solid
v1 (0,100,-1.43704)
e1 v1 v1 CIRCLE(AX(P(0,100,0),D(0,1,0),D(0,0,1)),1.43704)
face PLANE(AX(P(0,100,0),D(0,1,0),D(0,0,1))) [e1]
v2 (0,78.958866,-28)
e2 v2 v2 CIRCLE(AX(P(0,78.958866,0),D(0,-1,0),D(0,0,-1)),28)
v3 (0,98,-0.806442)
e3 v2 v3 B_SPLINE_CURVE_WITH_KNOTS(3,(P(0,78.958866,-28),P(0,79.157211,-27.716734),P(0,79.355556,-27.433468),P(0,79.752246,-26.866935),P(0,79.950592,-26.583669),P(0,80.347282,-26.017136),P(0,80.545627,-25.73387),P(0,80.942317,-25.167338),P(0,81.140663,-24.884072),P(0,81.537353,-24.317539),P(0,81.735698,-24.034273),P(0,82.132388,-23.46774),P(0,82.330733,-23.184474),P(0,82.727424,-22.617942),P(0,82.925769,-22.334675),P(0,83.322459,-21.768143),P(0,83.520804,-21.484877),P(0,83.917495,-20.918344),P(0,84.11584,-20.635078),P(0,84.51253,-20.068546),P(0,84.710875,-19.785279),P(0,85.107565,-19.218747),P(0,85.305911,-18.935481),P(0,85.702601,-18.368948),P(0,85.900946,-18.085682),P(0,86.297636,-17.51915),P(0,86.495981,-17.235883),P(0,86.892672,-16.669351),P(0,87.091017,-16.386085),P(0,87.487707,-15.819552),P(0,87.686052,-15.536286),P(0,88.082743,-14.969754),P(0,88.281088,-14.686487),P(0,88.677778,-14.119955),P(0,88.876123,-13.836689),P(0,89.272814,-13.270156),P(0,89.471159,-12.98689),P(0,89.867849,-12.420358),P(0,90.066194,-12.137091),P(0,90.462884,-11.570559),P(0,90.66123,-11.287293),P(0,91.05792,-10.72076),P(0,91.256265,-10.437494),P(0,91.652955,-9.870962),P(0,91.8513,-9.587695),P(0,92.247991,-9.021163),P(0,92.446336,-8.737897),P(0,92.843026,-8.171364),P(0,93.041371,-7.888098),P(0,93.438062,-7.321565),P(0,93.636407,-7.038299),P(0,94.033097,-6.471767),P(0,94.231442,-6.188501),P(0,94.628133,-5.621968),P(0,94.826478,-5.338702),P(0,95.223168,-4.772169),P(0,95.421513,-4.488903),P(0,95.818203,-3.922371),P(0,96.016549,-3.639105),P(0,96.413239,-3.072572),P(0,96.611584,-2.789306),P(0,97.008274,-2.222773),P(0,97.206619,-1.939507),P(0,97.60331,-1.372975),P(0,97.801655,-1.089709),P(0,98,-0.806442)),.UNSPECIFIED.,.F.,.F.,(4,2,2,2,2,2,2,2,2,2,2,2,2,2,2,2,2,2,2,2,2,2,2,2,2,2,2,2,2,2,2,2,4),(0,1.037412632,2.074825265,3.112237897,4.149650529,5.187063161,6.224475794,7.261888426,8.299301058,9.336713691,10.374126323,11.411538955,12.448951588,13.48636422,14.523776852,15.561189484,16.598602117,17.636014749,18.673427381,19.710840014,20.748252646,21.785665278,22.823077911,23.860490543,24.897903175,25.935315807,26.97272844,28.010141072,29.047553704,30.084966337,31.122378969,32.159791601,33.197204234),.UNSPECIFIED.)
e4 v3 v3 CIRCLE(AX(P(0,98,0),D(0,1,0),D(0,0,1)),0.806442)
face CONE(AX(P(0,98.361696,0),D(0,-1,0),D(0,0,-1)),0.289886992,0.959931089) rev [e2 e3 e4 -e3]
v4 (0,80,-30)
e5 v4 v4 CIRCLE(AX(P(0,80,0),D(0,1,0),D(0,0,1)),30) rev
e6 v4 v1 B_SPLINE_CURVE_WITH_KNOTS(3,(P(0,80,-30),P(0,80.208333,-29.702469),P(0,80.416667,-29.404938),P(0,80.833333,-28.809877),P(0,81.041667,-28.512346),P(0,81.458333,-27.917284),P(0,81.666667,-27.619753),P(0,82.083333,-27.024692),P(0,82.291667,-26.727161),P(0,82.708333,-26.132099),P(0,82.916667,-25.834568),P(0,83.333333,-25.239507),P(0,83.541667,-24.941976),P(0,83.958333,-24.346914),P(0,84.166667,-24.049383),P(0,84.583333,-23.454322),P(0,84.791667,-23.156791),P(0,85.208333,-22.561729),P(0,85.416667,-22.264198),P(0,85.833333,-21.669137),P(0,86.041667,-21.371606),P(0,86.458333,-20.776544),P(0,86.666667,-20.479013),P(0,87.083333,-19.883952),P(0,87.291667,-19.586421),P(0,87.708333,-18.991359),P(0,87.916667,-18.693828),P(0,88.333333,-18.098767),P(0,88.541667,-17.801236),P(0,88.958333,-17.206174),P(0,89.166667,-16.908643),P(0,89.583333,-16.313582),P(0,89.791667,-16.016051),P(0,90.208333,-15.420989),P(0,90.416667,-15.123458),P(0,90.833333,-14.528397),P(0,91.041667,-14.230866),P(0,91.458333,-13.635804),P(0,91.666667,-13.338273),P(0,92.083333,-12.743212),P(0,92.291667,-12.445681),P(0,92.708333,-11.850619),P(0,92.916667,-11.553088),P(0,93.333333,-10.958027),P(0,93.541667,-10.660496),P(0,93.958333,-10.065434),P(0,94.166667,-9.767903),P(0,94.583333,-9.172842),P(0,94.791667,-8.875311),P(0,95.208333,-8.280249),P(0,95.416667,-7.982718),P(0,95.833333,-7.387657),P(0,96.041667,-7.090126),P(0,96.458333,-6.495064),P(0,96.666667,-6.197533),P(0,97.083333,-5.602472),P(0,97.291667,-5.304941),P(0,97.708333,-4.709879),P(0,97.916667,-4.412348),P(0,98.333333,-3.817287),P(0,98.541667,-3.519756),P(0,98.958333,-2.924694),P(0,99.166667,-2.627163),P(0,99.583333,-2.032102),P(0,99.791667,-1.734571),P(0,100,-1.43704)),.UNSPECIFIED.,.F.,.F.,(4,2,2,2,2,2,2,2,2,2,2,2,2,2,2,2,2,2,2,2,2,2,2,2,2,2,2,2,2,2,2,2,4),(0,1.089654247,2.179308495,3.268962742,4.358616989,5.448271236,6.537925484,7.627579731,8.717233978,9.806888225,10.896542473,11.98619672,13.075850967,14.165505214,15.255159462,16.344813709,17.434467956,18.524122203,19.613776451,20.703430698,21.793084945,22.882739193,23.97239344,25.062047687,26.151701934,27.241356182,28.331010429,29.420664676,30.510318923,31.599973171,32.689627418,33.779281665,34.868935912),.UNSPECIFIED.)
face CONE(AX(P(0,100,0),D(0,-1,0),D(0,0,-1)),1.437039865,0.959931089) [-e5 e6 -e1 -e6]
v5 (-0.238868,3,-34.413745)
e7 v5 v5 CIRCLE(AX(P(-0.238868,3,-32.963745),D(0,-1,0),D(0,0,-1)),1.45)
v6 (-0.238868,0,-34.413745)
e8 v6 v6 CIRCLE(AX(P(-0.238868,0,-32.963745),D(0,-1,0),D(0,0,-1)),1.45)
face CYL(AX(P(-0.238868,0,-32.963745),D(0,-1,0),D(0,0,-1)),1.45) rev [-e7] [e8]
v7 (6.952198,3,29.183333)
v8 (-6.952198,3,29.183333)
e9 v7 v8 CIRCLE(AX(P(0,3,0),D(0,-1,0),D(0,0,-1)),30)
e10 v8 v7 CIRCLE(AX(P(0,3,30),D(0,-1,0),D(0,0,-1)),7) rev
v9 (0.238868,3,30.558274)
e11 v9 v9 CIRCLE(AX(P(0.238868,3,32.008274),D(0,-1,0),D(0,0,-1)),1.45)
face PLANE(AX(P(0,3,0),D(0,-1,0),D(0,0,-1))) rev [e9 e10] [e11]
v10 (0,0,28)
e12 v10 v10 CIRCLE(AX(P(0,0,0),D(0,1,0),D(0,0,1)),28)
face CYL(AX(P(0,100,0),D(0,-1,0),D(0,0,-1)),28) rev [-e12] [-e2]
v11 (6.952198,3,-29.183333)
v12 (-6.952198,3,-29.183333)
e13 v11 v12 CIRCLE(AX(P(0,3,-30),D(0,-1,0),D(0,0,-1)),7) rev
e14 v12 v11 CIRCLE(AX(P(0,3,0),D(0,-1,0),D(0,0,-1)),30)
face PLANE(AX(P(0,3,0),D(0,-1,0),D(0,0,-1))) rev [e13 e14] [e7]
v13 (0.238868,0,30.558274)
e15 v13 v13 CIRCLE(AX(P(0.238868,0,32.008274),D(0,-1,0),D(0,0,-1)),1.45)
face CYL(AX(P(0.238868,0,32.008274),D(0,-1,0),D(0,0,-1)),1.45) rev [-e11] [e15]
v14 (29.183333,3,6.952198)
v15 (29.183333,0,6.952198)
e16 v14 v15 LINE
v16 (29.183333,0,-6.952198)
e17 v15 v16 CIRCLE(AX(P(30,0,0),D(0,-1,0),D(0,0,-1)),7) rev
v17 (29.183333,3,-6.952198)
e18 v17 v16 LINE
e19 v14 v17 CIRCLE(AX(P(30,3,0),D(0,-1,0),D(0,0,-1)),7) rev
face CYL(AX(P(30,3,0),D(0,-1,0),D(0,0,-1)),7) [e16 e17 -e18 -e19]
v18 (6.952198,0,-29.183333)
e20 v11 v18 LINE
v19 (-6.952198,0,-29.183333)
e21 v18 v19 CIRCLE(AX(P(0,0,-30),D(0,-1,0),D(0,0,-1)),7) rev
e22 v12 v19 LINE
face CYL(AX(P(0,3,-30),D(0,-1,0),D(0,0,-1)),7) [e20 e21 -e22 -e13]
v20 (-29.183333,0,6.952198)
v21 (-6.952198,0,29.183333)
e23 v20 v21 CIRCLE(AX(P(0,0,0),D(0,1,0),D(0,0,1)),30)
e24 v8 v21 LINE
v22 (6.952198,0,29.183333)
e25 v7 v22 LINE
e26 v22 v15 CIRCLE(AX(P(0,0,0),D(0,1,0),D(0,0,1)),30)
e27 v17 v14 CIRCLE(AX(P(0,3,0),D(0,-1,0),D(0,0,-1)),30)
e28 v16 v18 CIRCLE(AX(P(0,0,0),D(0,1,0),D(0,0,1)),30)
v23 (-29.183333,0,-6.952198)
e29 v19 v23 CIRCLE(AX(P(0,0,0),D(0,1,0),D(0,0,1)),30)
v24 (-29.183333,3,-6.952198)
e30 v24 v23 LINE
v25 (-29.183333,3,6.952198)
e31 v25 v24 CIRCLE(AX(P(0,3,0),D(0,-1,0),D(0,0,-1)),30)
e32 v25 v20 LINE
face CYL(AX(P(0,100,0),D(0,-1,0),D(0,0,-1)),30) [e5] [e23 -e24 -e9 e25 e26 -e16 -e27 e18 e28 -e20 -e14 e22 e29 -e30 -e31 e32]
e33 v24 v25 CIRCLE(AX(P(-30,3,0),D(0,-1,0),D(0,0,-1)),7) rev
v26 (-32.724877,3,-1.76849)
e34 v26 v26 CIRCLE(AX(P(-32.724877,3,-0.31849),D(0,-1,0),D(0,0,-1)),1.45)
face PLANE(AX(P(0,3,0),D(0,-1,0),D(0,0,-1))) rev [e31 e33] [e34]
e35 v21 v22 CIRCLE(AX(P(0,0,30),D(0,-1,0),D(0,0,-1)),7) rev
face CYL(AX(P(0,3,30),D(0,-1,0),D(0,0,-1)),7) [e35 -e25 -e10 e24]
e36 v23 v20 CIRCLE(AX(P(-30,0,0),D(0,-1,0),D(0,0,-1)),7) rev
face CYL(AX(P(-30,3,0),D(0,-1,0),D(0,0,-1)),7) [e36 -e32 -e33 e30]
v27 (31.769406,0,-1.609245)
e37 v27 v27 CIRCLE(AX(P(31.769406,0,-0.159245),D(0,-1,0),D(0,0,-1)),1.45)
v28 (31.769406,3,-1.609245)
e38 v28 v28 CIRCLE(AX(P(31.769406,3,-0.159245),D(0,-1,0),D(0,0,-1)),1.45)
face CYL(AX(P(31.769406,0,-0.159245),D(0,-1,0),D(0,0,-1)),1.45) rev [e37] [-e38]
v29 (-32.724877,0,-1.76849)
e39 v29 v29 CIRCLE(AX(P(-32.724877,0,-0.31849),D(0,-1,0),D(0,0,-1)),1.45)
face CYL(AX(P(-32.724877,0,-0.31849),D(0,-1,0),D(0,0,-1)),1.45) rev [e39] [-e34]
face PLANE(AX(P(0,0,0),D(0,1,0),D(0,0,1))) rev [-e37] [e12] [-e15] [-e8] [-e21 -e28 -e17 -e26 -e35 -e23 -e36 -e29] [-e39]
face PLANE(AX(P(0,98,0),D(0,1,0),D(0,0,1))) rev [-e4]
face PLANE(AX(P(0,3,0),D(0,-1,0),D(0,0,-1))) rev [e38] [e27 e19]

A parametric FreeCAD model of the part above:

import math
import FreeCAD as App
import Part
import Sketcher
from FreeCAD import Vector


def edges_at(feature, points):
    """Names of the edges that pass closest to the given points."""
    edges = feature.Shape.Edges
    near = lambda p: min(range(len(edges)), key=lambda i: edges[i].distToShape(Part.Vertex(*p))[0])
    return sorted({f"Edge{near(p) + 1}" for p in points})


def faces_at(feature, points):
    """Names of the faces that lie closest to the given points."""
    faces = feature.Shape.Faces
    near = lambda p: min(range(len(faces)), key=lambda i: faces[i].distToShape(Part.Vertex(*p))[0])
    return sorted({f"Face{near(p) + 1}" for p in points})

doc = App.newDocument("Part")
params = doc.addObject("Spreadsheet::Sheet", "Params")
for row, (alias, value) in enumerate([
    ("sketch1_diameter", "60 mm"),
    ("pad1_length", "100 mm"),
    ("chamfer_size", "20 mm"),
    ("chamfer_size2", "28.56296 mm"),
    ("thickness_wall", "2 mm"),
    ("sketch2_radius", "7 mm"),
    ("sketch2_radius2", "30 mm"),
    ("pad2_length", "3 mm"),
    ("sketch3_diameter", "2.9 mm"),
    ("hole_diameter", "2.9 mm"),
    ("hole_depth", "9.128752 mm"),
], start=1):
    params.set(f"A{row}", alias)
    params.set(f"B{row}", "=" + value)
    params.setAlias(f"B{row}", alias)

body = doc.addObject("PartDesign::Body", "Body")

# Sketch on XZ plane
sketch1 = body.newObject("Sketcher::SketchObject", "Sketch")
sketch1.AttachmentSupport = (doc.getObject("XZ_Plane"), [""])
sketch1.MapMode = "FlatFace"
sketch1.addGeometry(Part.Circle(Vector(0, 0, 0), Vector(0, 0, 1), 30), False)
sketch1.addConstraint([
    Sketcher.Constraint("Coincident", 0, 3, -1, 1),
    Sketcher.Constraint("Diameter", 0, 60.0),
])
sketch1.setExpression("Constraints[1]", "Params.sketch1_diameter")
pad1 = body.newObject("PartDesign::Pad", "Pad")
pad1.Profile = sketch1
pad1.setExpression("Length", "Params.pad1_length")
pad1.Reversed = True
doc.recompute()

chamfer = body.newObject("PartDesign::Chamfer", "Chamfer")
chamfer.Base = (pad1, edges_at(pad1, [(0, 100, -30)]))
chamfer.ChamferType = "Two distances"
chamfer.setExpression("Size", "Params.chamfer_size")
chamfer.setExpression("Size2", "Params.chamfer_size2")
doc.recompute()

thickness = body.newObject("PartDesign::Thickness", "Thickness")
thickness.Base = (chamfer, faces_at(chamfer, [(0, 0, 0)]))
thickness.setExpression("Value", "Params.thickness_wall")
thickness.Reversed = True
thickness.Join = "Intersection"

# Sketch on XZ plane
sketch2 = body.newObject("Sketcher::SketchObject", "Sketch001")
sketch2.AttachmentSupport = (doc.getObject("XZ_Plane"), [""])
sketch2.MapMode = "FlatFace"
sketch2.addGeometry([
    Part.ArcOfCircle(Part.Circle(Vector(30, 0, 0), Vector(0, 0, 1), 7), math.radians(-97), math.radians(97)),  # 0
    Part.ArcOfCircle(Part.Circle(Vector(0, 0, 0), Vector(0, 0, 1), 30), math.radians(0), math.radians(13.4)),  # 1
    Part.ArcOfCircle(Part.Circle(Vector(0, 0, 0), Vector(0, 0, 1), 30), math.radians(-13.4), math.radians(0)),  # 2
    Part.ArcOfCircle(Part.Circle(Vector(0, 0, 0), Vector(0, 0, 1), 30), math.radians(77), math.radians(103)),  # 3
    Part.ArcOfCircle(Part.Circle(Vector(0, 30, 0), Vector(0, 0, 1), 7), math.radians(-7), math.radians(187)),  # 4
    Part.ArcOfCircle(Part.Circle(Vector(0, 0, 0), Vector(0, 0, 1), 30), math.radians(167), math.radians(193)),  # 5
    Part.ArcOfCircle(Part.Circle(Vector(-30, 0, 0), Vector(0, 0, 1), 7), math.radians(83), math.radians(277)),  # 6
    Part.ArcOfCircle(Part.Circle(Vector(0, -30, 0), Vector(0, 0, 1), 7), math.radians(173), math.radians(367)),  # 7
    Part.ArcOfCircle(Part.Circle(Vector(0, 0, 0), Vector(0, 0, 1), 30), math.radians(-103), math.radians(-77)),  # 8
], False)
sketch2.addConstraint([
    Sketcher.Constraint("Coincident", 0, 2, 1, 2),
    Sketcher.Constraint("Tangent", 1, 1, 2, 2),
    Sketcher.Constraint("Coincident", 2, 1, 0, 1),
    Sketcher.Constraint("Coincident", 3, 1, 4, 1),
    Sketcher.Constraint("Coincident", 4, 2, 3, 2),
    Sketcher.Constraint("Coincident", 5, 1, 6, 1),
    Sketcher.Constraint("Coincident", 6, 2, 5, 2),
    Sketcher.Constraint("Coincident", 7, 1, 8, 1),
    Sketcher.Constraint("Coincident", 8, 2, 7, 2),
    Sketcher.Constraint("Coincident", 1, 3, -1, 1),
    Sketcher.Constraint("Coincident", 3, 3, -1, 1),
    Sketcher.Constraint("Coincident", 5, 3, -1, 1),
    Sketcher.Constraint("Coincident", 8, 3, -1, 1),
    Sketcher.Constraint("Coincident", 1, 1, 0, 3),
    Sketcher.Constraint("Equal", 1, 2),
    Sketcher.Constraint("Equal", 2, 3),
    Sketcher.Constraint("Equal", 0, 4),
    Sketcher.Constraint("Equal", 3, 5),
    Sketcher.Constraint("Equal", 4, 6),
    Sketcher.Constraint("Equal", 6, 7),
    Sketcher.Constraint("Equal", 5, 8),
    Sketcher.Constraint("Symmetric", 0, 3, 6, 3, -1, 1),
    Sketcher.Constraint("Symmetric", 4, 3, 7, 3, -1, 1),
    Sketcher.Constraint("PointOnObject", 0, 3, -1),
    Sketcher.Constraint("PointOnObject", 4, 3, -2),
    Sketcher.Constraint("Radius", 0, 7.0),
    Sketcher.Constraint("Radius", 1, 30.0),
    Sketcher.Constraint("DistanceY", -1, 1, 4, 3, 30.0),
])
sketch2.setExpression("Constraints[25]", "Params.sketch2_radius")
sketch2.setExpression("Constraints[26]", "Params.sketch2_radius2")
pad2 = body.newObject("PartDesign::Pad", "Pad001")
pad2.Profile = sketch2
pad2.setExpression("Length", "Params.pad2_length")
pad2.Reversed = True

# Sketch on XZ plane
sketch3 = body.newObject("Sketcher::SketchObject", "Sketch002")
sketch3.AttachmentSupport = (doc.getObject("XZ_Plane"), [""])
sketch3.MapMode = "FlatFace"
sketch3.addGeometry([
    Part.Circle(Vector(0.2, 32, 0), Vector(0, 0, 1), 1.4),
    Part.Circle(Vector(31.8, -0.2, 0), Vector(0, 0, 1), 1.4),
    Part.Circle(Vector(-0.2, -33, 0), Vector(0, 0, 1), 1.4),
    Part.Circle(Vector(-32.7, -0.3, 0), Vector(0, 0, 1), 1.4),
], False)
sketch3.addConstraint([
    Sketcher.Constraint("Equal", 0, 1),
    Sketcher.Constraint("Equal", 1, 2),
    Sketcher.Constraint("Equal", 2, 3),
    Sketcher.Constraint("Diameter", 0, 2.9),
    Sketcher.Constraint("DistanceY", 2, 3, 1, 3, 32.804499),
    Sketcher.Constraint("DistanceY", 3, 3, -1, 1, 0.31849),
    Sketcher.Constraint("DistanceX", 0, 3, 1, 3, 31.530538),
    Sketcher.Constraint("DistanceY", 1, 3, 0, 3, 32.167519),
    Sketcher.Constraint("DistanceX", 3, 3, 2, 3, 32.486009),
    Sketcher.Constraint("DistanceX", -1, 1, 0, 3, 0.238868),
    Sketcher.Constraint("DistanceY", -1, 1, 0, 3, 32.008274),
    Sketcher.Constraint("DistanceX", 2, 3, -1, 1, 0.238868),
])
sketch3.setExpression("Constraints[3]", "Params.sketch3_diameter")
doc.recompute()
hole = body.newObject("PartDesign::Hole", "Hole")
hole.Profile = sketch3
hole.ThreadType = "None"
hole.setExpression("Diameter", "Params.hole_diameter")
hole.DepthType = "Dimension"
hole.setExpression("Depth", "Params.hole_depth")
hole.DrillPoint = "Angled"
hole.DrillPointAngle = 118

doc.recompute()
